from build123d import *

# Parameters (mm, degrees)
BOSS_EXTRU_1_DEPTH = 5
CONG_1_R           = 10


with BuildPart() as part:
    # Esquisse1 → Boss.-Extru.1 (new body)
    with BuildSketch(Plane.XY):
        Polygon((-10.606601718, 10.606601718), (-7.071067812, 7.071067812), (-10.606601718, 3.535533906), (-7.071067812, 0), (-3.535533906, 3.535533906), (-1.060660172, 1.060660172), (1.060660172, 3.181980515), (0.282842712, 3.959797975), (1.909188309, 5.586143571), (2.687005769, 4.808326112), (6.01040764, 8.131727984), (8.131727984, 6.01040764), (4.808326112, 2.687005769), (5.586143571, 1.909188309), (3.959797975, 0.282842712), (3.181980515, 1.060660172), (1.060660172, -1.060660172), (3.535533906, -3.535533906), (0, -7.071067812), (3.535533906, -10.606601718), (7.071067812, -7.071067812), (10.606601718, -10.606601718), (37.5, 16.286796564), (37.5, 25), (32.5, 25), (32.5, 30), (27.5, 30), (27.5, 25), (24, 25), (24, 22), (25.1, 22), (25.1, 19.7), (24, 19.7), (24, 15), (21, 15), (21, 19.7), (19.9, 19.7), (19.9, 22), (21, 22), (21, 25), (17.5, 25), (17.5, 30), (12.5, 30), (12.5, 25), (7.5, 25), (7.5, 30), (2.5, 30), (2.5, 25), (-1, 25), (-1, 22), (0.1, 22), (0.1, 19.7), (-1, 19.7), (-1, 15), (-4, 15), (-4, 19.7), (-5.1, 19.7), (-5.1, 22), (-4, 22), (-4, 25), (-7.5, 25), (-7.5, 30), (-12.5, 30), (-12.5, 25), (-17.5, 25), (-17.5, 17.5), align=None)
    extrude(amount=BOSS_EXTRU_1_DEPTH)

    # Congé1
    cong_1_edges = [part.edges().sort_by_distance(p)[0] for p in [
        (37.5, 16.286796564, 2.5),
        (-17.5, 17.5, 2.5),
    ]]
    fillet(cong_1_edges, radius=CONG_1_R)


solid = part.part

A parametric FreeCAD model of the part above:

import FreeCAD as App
import Part
import Sketcher


def edges_at(feature, points):
    """Names of the edges that pass closest to the given points."""
    edges = feature.Shape.Edges
    near = lambda p: min(range(len(edges)), key=lambda i: edges[i].distToShape(Part.Vertex(*p))[0])
    return sorted({f"Edge{near(p) + 1}" for p in points})


def add_polygon(sketch, points):
    """Adds a closed chain of lines whose ends are joined by coincident constraints."""
    first, n = sketch.GeometryCount, len(points)
    for a, b in zip(points, points[1:] + points[:1]):
        sketch.addGeometry(Part.LineSegment(App.Vector(*a, 0), App.Vector(*b, 0)), False)
    for i in range(n):
        sketch.addConstraint(Sketcher.Constraint("Coincident", first + i, 2, first + (i + 1) % n, 1))

doc = App.newDocument("Part")
body = doc.addObject("PartDesign::Body", "Body")

# Sketch on XY plane
sketch1 = doc.addObject("Sketcher::SketchObject", "Sketch")
body.addObject(sketch1)
sketch1.AttachmentSupport = (doc.XY_Plane, [""])
sketch1.MapMode = "FlatFace"
add_polygon(sketch1, [(-7.1, 7.1), (-10.6, 3.5), (-7.1, 0), (-3.5, 3.5), (-1.1, 1.1), (1.1, 3.2), (0.3, 4), (1.9, 5.6), (2.7, 4.8), (6, 8.1), (8.1, 6), (4.8, 2.7), (5.6, 1.9), (4, 0.3), (3.2, 1.1), (1.1, -1.1), (3.5, -3.5), (0, -7.1), (3.5, -10.6), (7.1, -7.1), (10.6, -10.6), (37.5, 16.3), (37.5, 25), (32.5, 25), (32.5, 30), (27.5, 30), (27.5, 25), (24, 25), (24, 22), (25.1, 22), (25.1, 19.7), (24, 19.7), (24, 15), (21, 15), (21, 19.7), (19.9, 19.7), (19.9, 22), (21, 22), (21, 25), (17.5, 25), (17.5, 30), (12.5, 30), (12.5, 25), (7.5, 25), (7.5, 30), (2.5, 30), (2.5, 25), (-1, 25), (-1, 22), (0.1, 22), (0.1, 19.7), (-1, 19.7), (-1, 15), (-4, 15), (-4, 19.7), (-5.1, 19.7), (-5.1, 22), (-4, 22), (-4, 25), (-7.5, 25), (-7.5, 30), (-12.5, 30), (-12.5, 25), (-17.5, 25), (-17.5, 17.5)])  # lines 0-64
sketch1.addConstraint([
    Sketcher.Constraint("Vertical", 21),
    Sketcher.Constraint("Horizontal", 22),
    Sketcher.Constraint("Vertical", 23),
    Sketcher.Constraint("Horizontal", 24),
    Sketcher.Constraint("Vertical", 25),
    Sketcher.Constraint("Horizontal", 26),
    Sketcher.Constraint("Vertical", 27),
    Sketcher.Constraint("Horizontal", 28),
    Sketcher.Constraint("Vertical", 29),
    Sketcher.Constraint("Horizontal", 30),
    Sketcher.Constraint("Vertical", 31),
    Sketcher.Constraint("Horizontal", 32),
    Sketcher.Constraint("Vertical", 33),
    Sketcher.Constraint("Horizontal", 34),
    Sketcher.Constraint("Vertical", 35),
    Sketcher.Constraint("Horizontal", 36),
    Sketcher.Constraint("Vertical", 37),
    Sketcher.Constraint("Horizontal", 38),
    Sketcher.Constraint("Vertical", 39),
    Sketcher.Constraint("Horizontal", 40),
    Sketcher.Constraint("Vertical", 41),
    Sketcher.Constraint("Horizontal", 42),
    Sketcher.Constraint("Vertical", 43),
    Sketcher.Constraint("Horizontal", 44),
    Sketcher.Constraint("Vertical", 45),
    Sketcher.Constraint("Horizontal", 46),
    Sketcher.Constraint("Vertical", 47),
    Sketcher.Constraint("Horizontal", 48),
    Sketcher.Constraint("Vertical", 49),
    Sketcher.Constraint("Horizontal", 50),
    Sketcher.Constraint("Vertical", 51),
    Sketcher.Constraint("Horizontal", 52),
    Sketcher.Constraint("Vertical", 53),
    Sketcher.Constraint("Horizontal", 54),
    Sketcher.Constraint("Vertical", 55),
    Sketcher.Constraint("Horizontal", 56),
    Sketcher.Constraint("Vertical", 57),
    Sketcher.Constraint("Horizontal", 58),
    Sketcher.Constraint("Vertical", 59),
    Sketcher.Constraint("Horizontal", 60),
    Sketcher.Constraint("Vertical", 61),
    Sketcher.Constraint("Horizontal", 62),
    Sketcher.Constraint("Vertical", 63),
    Sketcher.Constraint("Symmetric", 3, 2, 14, 2, -1, 1),
    Sketcher.Constraint("Symmetric", 2, 2, 15, 2, -1, 1),
    Sketcher.Constraint("Symmetric", 18, 2, 64, 2, -1, 1),
    Sketcher.Constraint("Symmetric", 42, 2, 58, 2, -2),
    Sketcher.Constraint("Symmetric", 40, 2, 60, 2, -2),
    Sketcher.Constraint("Symmetric", 38, 2, 62, 2, -2),
    Sketcher.Constraint("PointOnObject", 1, 2, -1),
    Sketcher.Constraint("PointOnObject", 16, 2, -2),
    Sketcher.Constraint("Perpendicular", 0, 1),
    Sketcher.Constraint("Perpendicular", 1, 2),
    Sketcher.Constraint("Perpendicular", 2, 3),
    Sketcher.Constraint("Perpendicular", 3, 4),
    Sketcher.Constraint("Perpendicular", 4, 5),
    Sketcher.Constraint("Perpendicular", 5, 6),
    Sketcher.Constraint("Perpendicular", 6, 7),
    Sketcher.Constraint("Perpendicular", 7, 8),
    Sketcher.Constraint("Perpendicular", 8, 9),
    Sketcher.Constraint("Perpendicular", 9, 10),
    Sketcher.Constraint("Perpendicular", 10, 11),
    Sketcher.Constraint("Perpendicular", 11, 12),
    Sketcher.Constraint("Perpendicular", 12, 13),
    Sketcher.Constraint("Perpendicular", 13, 14),
    Sketcher.Constraint("Perpendicular", 15, 16),
    Sketcher.Constraint("Perpendicular", 16, 17),
    Sketcher.Constraint("Perpendicular", 17, 18),
    Sketcher.Constraint("Perpendicular", 18, 19),
    Sketcher.Constraint("Perpendicular", 19, 20),
    Sketcher.Constraint("Perpendicular", 20, 64),
    Sketcher.Constraint("Horizontal", 0, 2, 2, 2),
    Sketcher.Constraint("Horizontal", 3, 2, 13, 2),
    Sketcher.Constraint("Horizontal", 16, 2, 18, 2),
    Sketcher.Constraint("Horizontal", 17, 2, 19, 2),
    Sketcher.Constraint("Horizontal", 22, 2, 25, 2),
    Sketcher.Constraint("Horizontal", 30, 2, 33, 2),
    Sketcher.Constraint("Horizontal", 28, 2, 35, 2),
    Sketcher.Constraint("Horizontal", 26, 2, 37, 2),
    Sketcher.Constraint("Horizontal", 24, 2, 39, 2),
    Sketcher.Constraint("Horizontal", 38, 2, 41, 2),
    Sketcher.Constraint("Horizontal", 40, 2, 43, 2),
    Sketcher.Constraint("Horizontal", 42, 2, 45, 2),
    Sketcher.Constraint("Horizontal", 36, 2, 47, 2),
    Sketcher.Constraint("Horizontal", 34, 2, 49, 2),
    Sketcher.Constraint("Horizontal", 32, 2, 51, 2),
    Sketcher.Constraint("Horizontal", 50, 2, 53, 2),
    Sketcher.Constraint("Horizontal", 48, 2, 55, 2),
    Sketcher.Constraint("Vertical", 4, 2, 14, 2),
    Sketcher.Constraint("Vertical", 15, 2, 17, 2),
    Sketcher.Constraint("Vertical", 27, 2, 30, 2),
    Sketcher.Constraint("Vertical", 33, 2, 36, 2),
    Sketcher.Constraint("Vertical", 47, 2, 50, 2),
    Sketcher.Constraint("Vertical", 53, 2, 56, 2),
    Sketcher.Constraint("Equal", 22, 24),
    Sketcher.Constraint("Equal", 30, 34),
    Sketcher.Constraint("Equal", 26, 38),
    Sketcher.Constraint("Equal", 24, 40),
    Sketcher.Constraint("Equal", 40, 42),
    Sketcher.Constraint("Equal", 42, 44),
    Sketcher.Constraint("Equal", 38, 46),
    Sketcher.Constraint("Equal", 36, 48),
    Sketcher.Constraint("Equal", 32, 52),
    Sketcher.Constraint("Equal", 50, 54),
    Sketcher.Constraint("Equal", 46, 58),
    Sketcher.Constraint("Equal", 62, 23),
    Sketcher.Constraint("Equal", 52, 27),
    Sketcher.Constraint("Equal", 0, 1),
    Sketcher.Constraint("Equal", 5, 7),
    Sketcher.Constraint("Equal", 4, 9),
    Sketcher.Constraint("Equal", 8, 10),
    Sketcher.Constraint("Equal", 7, 11),
    Sketcher.Constraint("DistanceX", 22, 2, 22, 1, 5.0),
    Sketcher.Constraint("DistanceX", 32, 2, 32, 1, 3.0),
    Sketcher.Constraint("Distance", 0, 5.0),
    Sketcher.Constraint("Distance", 4, 3.0),
    Sketcher.Constraint("DistanceX", 26, 2, 26, 1, 3.5),
    Sketcher.Constraint("DistanceX", 28, 1, 28, 2, 1.1),
    Sketcher.Constraint("DistanceY", 29, 2, 29, 1, 2.3),
    Sketcher.Constraint("DistanceY", 31, 2, 31, 1, 4.7),
    Sketcher.Constraint("DistanceY", 63, 2, 63, 1, 7.5),
    Sketcher.Constraint("Distance", 5, 1.1),
    Sketcher.Constraint("Distance", 6, 2.3),
    Sketcher.Constraint("Distance", 8, 4.7),
])
pad1 = doc.addObject("PartDesign::Pad", "Pad")
body.addObject(pad1)
pad1.Profile = sketch1
pad1.Length = 5
doc.recompute()

fillet = doc.addObject("PartDesign::Fillet", "Fillet")
body.addObject(fillet)
fillet.Base = (pad1, edges_at(pad1, [(37.5, 16.287, 2.5), (-17.5, 17.5, 2.5)]))
fillet.Radius = 10

doc.recompute()
